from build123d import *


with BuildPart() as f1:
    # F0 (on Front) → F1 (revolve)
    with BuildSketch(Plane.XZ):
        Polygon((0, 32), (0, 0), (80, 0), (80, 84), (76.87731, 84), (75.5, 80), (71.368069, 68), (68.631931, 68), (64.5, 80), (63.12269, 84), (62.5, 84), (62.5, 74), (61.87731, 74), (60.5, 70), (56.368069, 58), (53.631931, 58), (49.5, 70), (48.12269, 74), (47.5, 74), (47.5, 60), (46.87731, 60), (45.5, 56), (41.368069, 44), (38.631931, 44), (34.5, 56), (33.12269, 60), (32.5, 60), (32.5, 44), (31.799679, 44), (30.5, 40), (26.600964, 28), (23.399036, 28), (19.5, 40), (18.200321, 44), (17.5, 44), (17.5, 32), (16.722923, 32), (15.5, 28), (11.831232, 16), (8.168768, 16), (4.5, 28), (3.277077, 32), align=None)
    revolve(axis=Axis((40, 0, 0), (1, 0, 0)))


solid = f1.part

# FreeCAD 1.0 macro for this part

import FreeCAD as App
import Part
import Sketcher
Q = App.Units.Quantity


def add_polygon(sketch, points):
    """Adds a closed chain of lines whose ends are joined by coincident constraints."""
    first, n = sketch.GeometryCount, len(points)
    for a, b in zip(points, points[1:] + points[:1]):
        sketch.addGeometry(Part.LineSegment(App.Vector(*a, 0), App.Vector(*b, 0)), False)
    for i in range(n):
        sketch.addConstraint(Sketcher.Constraint("Coincident", first + i, 2, first + (i + 1) % n, 1))

doc = App.newDocument("Part")
body = doc.addObject("PartDesign::Body", "Body")

sketch1 = body.newObject("Sketcher::SketchObject", "Sketch")
sketch1.AttachmentSupport = (doc.getObject("XZ_Plane"), [""])
sketch1.MapMode = "FlatFace"
add_polygon(sketch1, [(0, 32), (0, 0), (80, 0), (80, 84), (76.9, 84), (75.5, 80), (71.4, 68), (68.6, 68), (64.5, 80), (63.1, 84), (62.5, 84), (62.5, 74), (61.9, 74), (60.5, 70), (56.4, 58), (53.6, 58), (49.5, 70), (48.1, 74), (47.5, 74), (47.5, 60), (46.9, 60), (45.5, 56), (41.4, 44), (38.6, 44), (34.5, 56), (33.1, 60), (32.5, 60), (32.5, 44), (31.8, 44), (30.5, 40), (26.6, 28), (23.4, 28), (19.5, 40), (18.2, 44), (17.5, 44), (17.5, 32), (16.7, 32), (15.5, 28), (11.8, 16), (8.2, 16), (4.5, 28), (3.3, 32)])
sketch1.addConstraint([
    Sketcher.Constraint("Vertical", 0),
    Sketcher.Constraint("Horizontal", 1),
    Sketcher.Constraint("Vertical", 2),
    Sketcher.Constraint("Horizontal", 3),
    Sketcher.Constraint("Horizontal", 6),
    Sketcher.Constraint("Horizontal", 9),
    Sketcher.Constraint("Vertical", 10),
    Sketcher.Constraint("Horizontal", 11),
    Sketcher.Constraint("Horizontal", 14),
    Sketcher.Constraint("Horizontal", 17),
    Sketcher.Constraint("Vertical", 18),
    Sketcher.Constraint("Horizontal", 19),
    Sketcher.Constraint("Horizontal", 22),
    Sketcher.Constraint("Horizontal", 25),
    Sketcher.Constraint("Vertical", 26),
    Sketcher.Constraint("Horizontal", 27),
    Sketcher.Constraint("Horizontal", 30),
    Sketcher.Constraint("Horizontal", 33),
    Sketcher.Constraint("Vertical", 34),
    Sketcher.Constraint("Horizontal", 35),
    Sketcher.Constraint("Horizontal", 38),
    Sketcher.Constraint("Horizontal", 41),
    Sketcher.Constraint("Coincident", 0, 2, -1, 1),
    Sketcher.Constraint("Parallel", 4, 5),
    Sketcher.Constraint("Parallel", 7, 8),
    Sketcher.Constraint("Parallel", 5, 12),
    Sketcher.Constraint("Parallel", 12, 13),
    Sketcher.Constraint("Parallel", 8, 15),
    Sketcher.Constraint("Parallel", 15, 16),
    Sketcher.Constraint("Parallel", 13, 20),
    Sketcher.Constraint("Parallel", 20, 21),
    Sketcher.Constraint("Parallel", 16, 23),
    Sketcher.Constraint("Parallel", 23, 24),
    Sketcher.Constraint("Parallel", 28, 29),
    Sketcher.Constraint("Parallel", 31, 32),
    Sketcher.Constraint("Parallel", 36, 37),
    Sketcher.Constraint("Parallel", 39, 40),
    Sketcher.Constraint("Horizontal", 4, 2, 7, 2),
    Sketcher.Constraint("Horizontal", 3, 2, 8, 2),
    Sketcher.Constraint("Horizontal", 12, 2, 15, 2),
    Sketcher.Constraint("Horizontal", 11, 2, 16, 2),
    Sketcher.Constraint("Horizontal", 20, 2, 23, 2),
    Sketcher.Constraint("Horizontal", 19, 2, 24, 2),
    Sketcher.Constraint("Horizontal", 22, 2, 26, 2),
    Sketcher.Constraint("Horizontal", 28, 2, 31, 2),
    Sketcher.Constraint("Horizontal", 27, 2, 32, 2),
    Sketcher.Constraint("Horizontal", 30, 2, 36, 2),
    Sketcher.Constraint("Horizontal", 36, 2, 39, 2),
    Sketcher.Constraint("Horizontal", 35, 2, 40, 2),
    Sketcher.Constraint("Equal", 9, 11),
    Sketcher.Constraint("Equal", 6, 14),
    Sketcher.Constraint("Equal", 11, 17),
    Sketcher.Constraint("Equal", 17, 19),
    Sketcher.Constraint("Equal", 14, 22),
    Sketcher.Constraint("Equal", 19, 25),
    Sketcher.Constraint("Equal", 27, 33),
    Sketcher.Constraint("Equal", 5, 7),
    Sketcher.Constraint("Equal", 8, 12),
    Sketcher.Constraint("Equal", 7, 13),
    Sketcher.Constraint("Equal", 16, 20),
    Sketcher.Constraint("Equal", 15, 21),
    Sketcher.Constraint("Equal", 29, 31),
    Sketcher.Constraint("Equal", 37, 39),
    Sketcher.Constraint("DistanceX", 1, 1, 1, 2, 80.0),
    Sketcher.Constraint("DistanceY", 0, 2, 0, 1, 32.0),
    Sketcher.Constraint("DistanceY", 2, 1, 2, 2, 84.0),
    Sketcher.Constraint("DistanceY", 10, 2, 10, 1, 10.0),
    Sketcher.Constraint("DistanceY", 18, 2, 18, 1, 14.0),
    Sketcher.Constraint("DistanceY", 26, 2, 26, 1, 16.0),
    Sketcher.Constraint("Angle", 4, Q("-108.999994 deg")),
    Sketcher.Constraint("Angle", 28, Q("-108.000003 deg")),
    Sketcher.Constraint("Angle", 36, Q("-107.000004 deg")),
    Sketcher.Constraint("DistanceY", -1, 1, 4, 2, 80.0),
    Sketcher.Constraint("DistanceY", -1, 1, 28, 2, 40.0),
    Sketcher.Constraint("DistanceY", -1, 1, 29, 2, 28.0),
    Sketcher.Constraint("DistanceY", -1, 1, 37, 2, 16.0),
    Sketcher.Constraint("DistanceX", 7, 2, 4, 2, 11.0),
    Sketcher.Constraint("DistanceX", 9, 2, 7, 2, 2.0),
    Sketcher.Constraint("DistanceX", 28, 2, 26, 2, 2.0),
    Sketcher.Constraint("DistanceX", 31, 2, 28, 2, 11.0),
    Sketcher.Constraint("DistanceX", 36, 2, 34, 2, 2.0),
    Sketcher.Constraint("DistanceX", 39, 2, 36, 2, 11.0),
    Sketcher.Constraint("DistanceX", -1, 1, 4, 2, 75.5),
])
revolution = body.newObject("PartDesign::Revolution", "Revolution")
revolution.Profile = sketch1
revolution.ReferenceAxis = (sketch1, ["H_Axis"])
revolution.Angle = 360

doc.recompute()
